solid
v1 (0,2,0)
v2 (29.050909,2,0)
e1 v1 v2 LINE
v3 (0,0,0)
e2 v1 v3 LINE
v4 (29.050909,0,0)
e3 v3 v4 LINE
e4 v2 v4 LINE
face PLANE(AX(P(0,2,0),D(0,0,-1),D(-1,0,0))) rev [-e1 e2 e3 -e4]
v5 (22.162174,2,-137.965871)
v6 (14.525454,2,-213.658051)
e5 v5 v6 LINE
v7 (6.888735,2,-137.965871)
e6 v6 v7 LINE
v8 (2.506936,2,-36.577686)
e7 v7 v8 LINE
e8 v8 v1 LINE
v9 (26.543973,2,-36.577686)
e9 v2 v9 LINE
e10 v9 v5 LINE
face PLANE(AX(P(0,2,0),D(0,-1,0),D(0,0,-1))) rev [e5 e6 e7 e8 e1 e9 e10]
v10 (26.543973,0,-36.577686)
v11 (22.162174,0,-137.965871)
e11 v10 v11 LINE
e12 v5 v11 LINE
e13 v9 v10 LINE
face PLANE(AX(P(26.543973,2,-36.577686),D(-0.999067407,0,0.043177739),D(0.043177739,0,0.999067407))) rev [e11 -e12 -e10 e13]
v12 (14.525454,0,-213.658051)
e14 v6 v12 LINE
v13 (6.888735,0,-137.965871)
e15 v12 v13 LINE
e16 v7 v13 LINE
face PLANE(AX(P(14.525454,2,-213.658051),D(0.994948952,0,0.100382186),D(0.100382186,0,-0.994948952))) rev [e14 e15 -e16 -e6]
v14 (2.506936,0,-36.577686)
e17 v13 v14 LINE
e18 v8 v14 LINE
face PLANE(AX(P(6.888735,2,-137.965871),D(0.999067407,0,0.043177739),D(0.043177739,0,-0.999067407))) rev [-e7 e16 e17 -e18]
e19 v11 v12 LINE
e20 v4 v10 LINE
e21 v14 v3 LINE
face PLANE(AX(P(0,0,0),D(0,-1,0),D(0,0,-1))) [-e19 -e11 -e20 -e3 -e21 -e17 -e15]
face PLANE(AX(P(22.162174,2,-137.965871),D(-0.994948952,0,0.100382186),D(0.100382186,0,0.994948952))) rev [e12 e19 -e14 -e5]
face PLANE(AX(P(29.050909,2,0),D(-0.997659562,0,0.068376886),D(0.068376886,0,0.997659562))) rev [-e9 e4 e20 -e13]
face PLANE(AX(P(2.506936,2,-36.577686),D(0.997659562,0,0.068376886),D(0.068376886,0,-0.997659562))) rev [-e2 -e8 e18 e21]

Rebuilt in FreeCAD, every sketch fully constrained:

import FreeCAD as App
import Part
import Sketcher

V = App.Vector


def add_polygon(sketch, points):
    """Adds a closed chain of lines whose ends are joined by coincident constraints."""
    first, n = sketch.GeometryCount, len(points)
    for a, b in zip(points, points[1:] + points[:1]):
        sketch.addGeometry(Part.LineSegment(App.Vector(*a, 0), App.Vector(*b, 0)), False)
    for i in range(n):
        sketch.addConstraint(Sketcher.Constraint("Coincident", first + i, 2, first + (i + 1) % n, 1))

doc = App.newDocument("Part")
body = doc.addObject("PartDesign::Body", "Body")

sketch1 = doc.addObject("Sketcher::SketchObject", "Sketch")
body.addObject(sketch1)
sketch1.AttachmentSupport = (doc.XZ_Plane, [""])
sketch1.MapMode = "FlatFace"
add_polygon(sketch1, [(22, -138), (15, -214), (7, -138), (3, -37), (0, 0), (29, 0), (27, -37)])
sketch1.addConstraint(Sketcher.Constraint("Horizontal", 4))
sketch1.addConstraint(Sketcher.Constraint("Coincident", 3, 2, -1, 1))
sketch1.addConstraint(Sketcher.Constraint("Horizontal", 2, 2, 5, 2))
sketch1.addConstraint(Sketcher.Constraint("Horizontal", 1, 2, 6, 2))
sketch1.addConstraint(Sketcher.Constraint("Equal", 0, 1))
sketch1.addConstraint(Sketcher.Constraint("Equal", 3, 5))
sketch1.addConstraint(Sketcher.Constraint("Equal", 2, 6))
sketch1.addConstraint(Sketcher.Constraint("DistanceX", 4, 1, 4, 2, 29.050909))
sketch1.addConstraint(Sketcher.Constraint("DistanceX", 2, 2, 1, 2, 4.381799))
sketch1.addConstraint(Sketcher.Constraint("DistanceY", 0, 2, -1, 1, 213.658051))
sketch1.addConstraint(Sketcher.Constraint("DistanceY", 1, 2, -1, 1, 137.965871))
sketch1.addConstraint(Sketcher.Constraint("DistanceX", 1, 2, 0, 2, 7.63672))
sketch1.addConstraint(Sketcher.Constraint("Distance", 2, 101.482828))
pad1 = doc.addObject("PartDesign::Pad", "Pad")
body.addObject(pad1)
pad1.Profile = sketch1
pad1.Length = 2
pad1.Reversed = True

doc.recompute()
